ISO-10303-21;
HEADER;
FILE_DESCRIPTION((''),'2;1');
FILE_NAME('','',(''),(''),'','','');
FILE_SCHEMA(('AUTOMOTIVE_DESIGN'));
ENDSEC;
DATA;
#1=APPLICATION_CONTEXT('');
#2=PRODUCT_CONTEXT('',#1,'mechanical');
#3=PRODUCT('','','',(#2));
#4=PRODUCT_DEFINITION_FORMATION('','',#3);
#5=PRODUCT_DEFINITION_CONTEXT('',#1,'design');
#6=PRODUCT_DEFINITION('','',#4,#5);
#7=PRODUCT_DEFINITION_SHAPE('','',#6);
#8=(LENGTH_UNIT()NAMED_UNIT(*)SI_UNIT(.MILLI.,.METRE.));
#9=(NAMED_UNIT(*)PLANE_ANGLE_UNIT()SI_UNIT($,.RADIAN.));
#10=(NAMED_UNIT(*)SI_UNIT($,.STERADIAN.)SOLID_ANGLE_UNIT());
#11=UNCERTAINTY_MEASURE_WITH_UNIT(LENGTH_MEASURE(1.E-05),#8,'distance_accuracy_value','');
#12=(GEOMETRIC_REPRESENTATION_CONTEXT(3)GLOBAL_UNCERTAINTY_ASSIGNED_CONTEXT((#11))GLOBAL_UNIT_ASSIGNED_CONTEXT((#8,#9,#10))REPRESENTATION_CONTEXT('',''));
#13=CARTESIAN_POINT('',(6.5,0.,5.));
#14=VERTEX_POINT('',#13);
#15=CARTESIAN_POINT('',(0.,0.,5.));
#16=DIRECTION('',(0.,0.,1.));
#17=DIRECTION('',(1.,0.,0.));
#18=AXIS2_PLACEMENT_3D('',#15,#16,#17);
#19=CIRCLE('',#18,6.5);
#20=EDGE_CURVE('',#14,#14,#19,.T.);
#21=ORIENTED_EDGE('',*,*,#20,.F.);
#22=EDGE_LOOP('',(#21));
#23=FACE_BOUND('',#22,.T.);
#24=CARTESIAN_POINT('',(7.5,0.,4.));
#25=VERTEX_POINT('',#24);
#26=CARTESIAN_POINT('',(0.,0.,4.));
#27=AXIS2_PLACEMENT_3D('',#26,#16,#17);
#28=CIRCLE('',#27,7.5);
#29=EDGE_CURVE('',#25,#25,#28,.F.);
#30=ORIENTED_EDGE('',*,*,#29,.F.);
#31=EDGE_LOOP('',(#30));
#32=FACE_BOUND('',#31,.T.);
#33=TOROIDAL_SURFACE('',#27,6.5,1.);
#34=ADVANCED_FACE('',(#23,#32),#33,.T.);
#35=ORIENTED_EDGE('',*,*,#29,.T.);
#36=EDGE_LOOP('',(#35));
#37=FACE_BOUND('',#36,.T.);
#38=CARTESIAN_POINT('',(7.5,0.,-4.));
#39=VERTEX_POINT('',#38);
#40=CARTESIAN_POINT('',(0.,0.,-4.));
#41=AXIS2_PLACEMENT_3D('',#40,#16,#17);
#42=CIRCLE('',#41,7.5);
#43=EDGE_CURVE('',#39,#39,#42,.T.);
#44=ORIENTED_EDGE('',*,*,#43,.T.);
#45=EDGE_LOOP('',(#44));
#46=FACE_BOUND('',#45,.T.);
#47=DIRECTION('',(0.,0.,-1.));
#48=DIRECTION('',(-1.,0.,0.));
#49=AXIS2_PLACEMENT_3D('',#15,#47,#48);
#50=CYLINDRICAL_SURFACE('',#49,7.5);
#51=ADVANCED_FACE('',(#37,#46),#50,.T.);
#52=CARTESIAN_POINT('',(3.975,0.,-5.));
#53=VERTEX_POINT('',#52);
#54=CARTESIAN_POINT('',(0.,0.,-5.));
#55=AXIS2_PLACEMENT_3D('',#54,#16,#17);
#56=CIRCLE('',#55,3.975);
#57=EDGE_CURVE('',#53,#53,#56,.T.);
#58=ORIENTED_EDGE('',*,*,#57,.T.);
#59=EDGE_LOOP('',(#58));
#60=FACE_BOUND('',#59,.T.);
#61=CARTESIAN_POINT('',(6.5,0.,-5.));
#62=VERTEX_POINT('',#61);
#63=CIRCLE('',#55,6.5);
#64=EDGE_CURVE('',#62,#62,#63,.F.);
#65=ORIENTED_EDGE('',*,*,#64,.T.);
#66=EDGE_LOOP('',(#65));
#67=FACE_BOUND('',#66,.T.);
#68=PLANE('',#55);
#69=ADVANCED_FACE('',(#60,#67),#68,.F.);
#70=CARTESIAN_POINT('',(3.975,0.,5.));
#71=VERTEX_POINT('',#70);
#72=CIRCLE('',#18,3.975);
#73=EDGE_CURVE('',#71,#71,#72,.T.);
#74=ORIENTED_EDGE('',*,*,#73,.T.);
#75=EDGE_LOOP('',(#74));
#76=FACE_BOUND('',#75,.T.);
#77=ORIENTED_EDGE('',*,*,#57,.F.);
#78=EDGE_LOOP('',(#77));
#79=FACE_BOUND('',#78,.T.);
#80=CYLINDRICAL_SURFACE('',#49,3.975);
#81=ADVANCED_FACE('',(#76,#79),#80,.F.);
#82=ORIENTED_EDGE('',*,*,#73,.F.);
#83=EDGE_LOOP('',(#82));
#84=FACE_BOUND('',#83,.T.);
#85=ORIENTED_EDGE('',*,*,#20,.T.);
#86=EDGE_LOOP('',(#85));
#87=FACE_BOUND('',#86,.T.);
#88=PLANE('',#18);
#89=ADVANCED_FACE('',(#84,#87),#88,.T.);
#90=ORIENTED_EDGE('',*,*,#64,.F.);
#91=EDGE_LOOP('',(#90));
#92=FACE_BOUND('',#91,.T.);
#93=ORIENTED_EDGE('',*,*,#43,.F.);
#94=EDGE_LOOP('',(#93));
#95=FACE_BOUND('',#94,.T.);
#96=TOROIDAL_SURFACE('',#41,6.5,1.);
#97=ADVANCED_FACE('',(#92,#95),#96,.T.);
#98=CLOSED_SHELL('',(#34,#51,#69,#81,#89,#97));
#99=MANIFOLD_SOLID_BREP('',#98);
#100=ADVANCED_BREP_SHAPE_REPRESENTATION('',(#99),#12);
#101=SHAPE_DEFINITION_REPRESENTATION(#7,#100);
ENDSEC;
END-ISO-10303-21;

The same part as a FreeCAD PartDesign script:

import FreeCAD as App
import Part
import Sketcher

V = App.Vector
Q = App.Units.Quantity


def edges_at(feature, points):
    """Names of the edges that pass closest to the given points."""
    edges = feature.Shape.Edges
    near = lambda p: min(range(len(edges)), key=lambda i: edges[i].distToShape(Part.Vertex(*p))[0])
    return sorted({f"Edge{near(p) + 1}" for p in points})

doc = App.newDocument("Part")
body = doc.addObject("PartDesign::Body", "Body")

# Sketch on XY plane
sketch1 = body.newObject("Sketcher::SketchObject", "Sketch")
sketch1.AttachmentSupport = (doc.getObject("XY_Plane"), [""])
sketch1.MapMode = "FlatFace"
sketch1.addGeometry(Part.Circle(V(0, 0, 0), V(0, 0, 1), 7.5), False)
sketch1.addGeometry(Part.Circle(V(0, 0, 0), V(0, 0, 1), 4), False)
sketch1.addConstraint(Sketcher.Constraint("Coincident", 0, 3, -1, 1))
sketch1.addConstraint(Sketcher.Constraint("Coincident", 1, 3, -1, 1))
sketch1.addConstraint(Sketcher.Constraint("Diameter", 0, Q("15 mm")))
sketch1.addConstraint(Sketcher.Constraint("Diameter", 1, Q("7.95 mm")))
pad1 = body.newObject("PartDesign::Pad", "Pad")
pad1.Profile = sketch1
pad1.Length = 10
pad1.Midplane = True
doc.recompute()

fillet = body.newObject("PartDesign::Fillet", "Fillet")
fillet.Base = (pad1, edges_at(pad1, [(-7.5, 0, -5), (-7.5, 0, 5)]))
fillet.Radius = 1

doc.recompute()
